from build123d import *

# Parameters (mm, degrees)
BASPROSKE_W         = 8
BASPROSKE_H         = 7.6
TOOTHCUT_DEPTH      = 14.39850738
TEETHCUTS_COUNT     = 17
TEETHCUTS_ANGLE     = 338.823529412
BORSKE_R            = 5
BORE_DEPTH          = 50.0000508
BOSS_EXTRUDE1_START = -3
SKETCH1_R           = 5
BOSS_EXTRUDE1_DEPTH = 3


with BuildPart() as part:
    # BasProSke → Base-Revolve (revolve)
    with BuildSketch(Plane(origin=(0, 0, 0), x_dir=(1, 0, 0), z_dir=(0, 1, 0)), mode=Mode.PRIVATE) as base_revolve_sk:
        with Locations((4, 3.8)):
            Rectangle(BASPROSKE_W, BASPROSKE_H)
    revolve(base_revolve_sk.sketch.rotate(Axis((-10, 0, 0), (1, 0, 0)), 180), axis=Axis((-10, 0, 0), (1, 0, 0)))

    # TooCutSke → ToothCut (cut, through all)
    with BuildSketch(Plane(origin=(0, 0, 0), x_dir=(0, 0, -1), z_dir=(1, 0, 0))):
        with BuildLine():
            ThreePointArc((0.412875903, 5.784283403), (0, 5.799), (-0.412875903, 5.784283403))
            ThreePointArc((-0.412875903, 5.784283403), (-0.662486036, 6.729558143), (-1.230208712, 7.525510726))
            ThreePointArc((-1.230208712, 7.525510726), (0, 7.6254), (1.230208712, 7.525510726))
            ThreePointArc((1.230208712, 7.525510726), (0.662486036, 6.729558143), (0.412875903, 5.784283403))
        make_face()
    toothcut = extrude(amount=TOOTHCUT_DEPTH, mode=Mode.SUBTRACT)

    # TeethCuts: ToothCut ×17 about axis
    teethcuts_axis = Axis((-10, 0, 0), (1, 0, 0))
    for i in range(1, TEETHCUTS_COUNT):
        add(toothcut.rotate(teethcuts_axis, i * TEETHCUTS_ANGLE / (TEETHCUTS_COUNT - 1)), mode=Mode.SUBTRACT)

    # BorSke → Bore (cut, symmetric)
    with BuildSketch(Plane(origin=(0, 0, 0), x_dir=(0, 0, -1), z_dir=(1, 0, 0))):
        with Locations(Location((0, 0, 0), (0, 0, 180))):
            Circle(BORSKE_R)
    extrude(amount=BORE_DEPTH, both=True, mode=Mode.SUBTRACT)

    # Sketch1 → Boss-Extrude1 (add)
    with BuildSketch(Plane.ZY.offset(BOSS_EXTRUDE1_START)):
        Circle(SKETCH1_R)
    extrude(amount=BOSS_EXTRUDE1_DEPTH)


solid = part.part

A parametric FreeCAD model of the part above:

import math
import FreeCAD as App
import Part
import Sketcher
Q = App.Units.Quantity

doc = App.newDocument("Part")
body = doc.addObject("PartDesign::Body", "Body")

# Sketch on XZ plane
sketch1 = body.newObject("Sketcher::SketchObject", "Sketch")
sketch1.AttachmentSupport = (doc.getObject("XZ_Plane"), [""])
sketch1.MapMode = "FlatFace"
sketch1.addGeometry(Part.LineSegment(App.Vector(0, -8, 0), App.Vector(0, 0, 0)), False)
sketch1.addGeometry(Part.LineSegment(App.Vector(0, 0, 0), App.Vector(8, 0, 0)), False)
sketch1.addGeometry(Part.LineSegment(App.Vector(8, 0, 0), App.Vector(8, -8, 0)), False)
sketch1.addGeometry(Part.LineSegment(App.Vector(8, -8, 0), App.Vector(0, -8, 0)), False)
sketch1.addConstraint(Sketcher.Constraint("Coincident", 0, 2, 1, 1))
sketch1.addConstraint(Sketcher.Constraint("Coincident", 1, 2, 2, 1))
sketch1.addConstraint(Sketcher.Constraint("Coincident", 2, 2, 3, 1))
sketch1.addConstraint(Sketcher.Constraint("Coincident", 3, 2, 0, 1))
sketch1.addConstraint(Sketcher.Constraint("Vertical", 0))
sketch1.addConstraint(Sketcher.Constraint("Horizontal", 1))
sketch1.addConstraint(Sketcher.Constraint("Vertical", 2))
sketch1.addConstraint(Sketcher.Constraint("Horizontal", 3))
sketch1.addConstraint(Sketcher.Constraint("Coincident", 0, 2, -1, 1))
sketch1.addConstraint(Sketcher.Constraint("DistanceX", 1, 1, 1, 2, Q("8 mm")))
sketch1.addConstraint(Sketcher.Constraint("DistanceY", 0, 1, 0, 2, Q("7.6 mm")))
revolution = body.newObject("PartDesign::Revolution", "Revolution")
revolution.Profile = sketch1
revolution.ReferenceAxis = (sketch1, ["H_Axis"])
revolution.Angle = 360

# Sketch on YZ plane
sketch2 = body.newObject("Sketcher::SketchObject", "Sketch001")
sketch2.AttachmentSupport = (doc.getObject("YZ_Plane"), [""])
sketch2.MapMode = "FlatFace"
sketch2.addGeometry(Part.ArcOfCircle(Part.Circle(App.Vector(0, 0, 0), App.Vector(0, 0, 1), 5.8), math.radians(-4.08), math.radians(4.08)), False)
sketch2.addGeometry(Part.ArcOfCircle(Part.Circle(App.Vector(5.6, -3.1, 0), App.Vector(0, 0, 1), 2.7), math.radians(44), math.radians(86)), False)
sketch2.addGeometry(Part.ArcOfCircle(Part.Circle(App.Vector(0, 0, 0), App.Vector(0, 0, 1), 7.6), math.radians(-9.28), math.radians(9.28)), False)
sketch2.addGeometry(Part.ArcOfCircle(Part.Circle(App.Vector(5.6, 3.1, 0), App.Vector(0, 0, 1), 2.7), math.radians(-86), math.radians(-44)), False)
sketch2.addConstraint(Sketcher.Constraint("Coincident", 0, 1, 1, 2))
sketch2.addConstraint(Sketcher.Constraint("Coincident", 1, 1, 2, 1))
sketch2.addConstraint(Sketcher.Constraint("Coincident", 2, 2, 3, 2))
sketch2.addConstraint(Sketcher.Constraint("Coincident", 3, 1, 0, 2))
sketch2.addConstraint(Sketcher.Constraint("Coincident", 0, 3, -1, 1))
sketch2.addConstraint(Sketcher.Constraint("Coincident", 2, 3, -1, 1))
sketch2.addConstraint(Sketcher.Constraint("Equal", 1, 3))
sketch2.addConstraint(Sketcher.Constraint("Symmetric", 1, 3, 3, 3, -1))
sketch2.addConstraint(Sketcher.Constraint("Radius", 1, Q("2.72 mm")))
sketch2.addConstraint(Sketcher.Constraint("Radius", 0, Q("5.799 mm")))
sketch2.addConstraint(Sketcher.Constraint("Radius", 2, Q("7.6254 mm")))
sketch2.addConstraint(Sketcher.Constraint("DistanceX", 1, 3, 0, 1, Q("0.210498 mm")))
sketch2.addConstraint(Sketcher.Constraint("DistanceY", 1, 3, -1, 1, Q("3.124719 mm")))
pocket1 = body.newObject("PartDesign::Pocket", "Pocket")
pocket1.Profile = sketch2
pocket1.Type = "ThroughAll"
pocket1.Reversed = True
doc.recompute()

polarpattern = body.newObject("PartDesign::PolarPattern", "PolarPattern")
polarpattern.Originals = [pocket1]
polarpattern.Axis = (doc.getObject("X_Axis"), [""])
polarpattern.Angle = 360
polarpattern.Occurrences = 17
body.Tip = polarpattern

# Sketch on YZ plane
sketch3 = body.newObject("Sketcher::SketchObject", "Sketch002")
sketch3.AttachmentSupport = (doc.getObject("YZ_Plane"), [""])
sketch3.MapMode = "FlatFace"
sketch3.addGeometry(Part.Circle(App.Vector(0, 0, 0), App.Vector(0, 0, 1), 5), False)
sketch3.addConstraint(Sketcher.Constraint("Coincident", 0, 3, -1, 1))
sketch3.addConstraint(Sketcher.Constraint("Diameter", 0, Q("10 mm")))
pocket2 = body.newObject("PartDesign::Pocket", "Pocket001")
pocket2.Profile = sketch3
pocket2.Length = 100.000102
pocket2.Midplane = True

# Sketch on YZ plane
sketch4 = body.newObject("Sketcher::SketchObject", "Sketch003")
sketch4.AttachmentSupport = (doc.getObject("YZ_Plane"), [""])
sketch4.MapMode = "FlatFace"
sketch4.AttachmentOffset = App.Placement(App.Vector(0, 0, 3), App.Rotation())
sketch4.addGeometry(Part.Circle(App.Vector(0, 0, 0), App.Vector(0, 0, 1), 5), False)
sketch4.addConstraint(Sketcher.Constraint("Coincident", 0, 3, -1, 1))
sketch4.addConstraint(Sketcher.Constraint("Diameter", 0, Q("10 mm")))
pad1 = body.newObject("PartDesign::Pad", "Pad")
pad1.Profile = sketch4
pad1.Length = 3
pad1.Reversed = True

doc.recompute()
